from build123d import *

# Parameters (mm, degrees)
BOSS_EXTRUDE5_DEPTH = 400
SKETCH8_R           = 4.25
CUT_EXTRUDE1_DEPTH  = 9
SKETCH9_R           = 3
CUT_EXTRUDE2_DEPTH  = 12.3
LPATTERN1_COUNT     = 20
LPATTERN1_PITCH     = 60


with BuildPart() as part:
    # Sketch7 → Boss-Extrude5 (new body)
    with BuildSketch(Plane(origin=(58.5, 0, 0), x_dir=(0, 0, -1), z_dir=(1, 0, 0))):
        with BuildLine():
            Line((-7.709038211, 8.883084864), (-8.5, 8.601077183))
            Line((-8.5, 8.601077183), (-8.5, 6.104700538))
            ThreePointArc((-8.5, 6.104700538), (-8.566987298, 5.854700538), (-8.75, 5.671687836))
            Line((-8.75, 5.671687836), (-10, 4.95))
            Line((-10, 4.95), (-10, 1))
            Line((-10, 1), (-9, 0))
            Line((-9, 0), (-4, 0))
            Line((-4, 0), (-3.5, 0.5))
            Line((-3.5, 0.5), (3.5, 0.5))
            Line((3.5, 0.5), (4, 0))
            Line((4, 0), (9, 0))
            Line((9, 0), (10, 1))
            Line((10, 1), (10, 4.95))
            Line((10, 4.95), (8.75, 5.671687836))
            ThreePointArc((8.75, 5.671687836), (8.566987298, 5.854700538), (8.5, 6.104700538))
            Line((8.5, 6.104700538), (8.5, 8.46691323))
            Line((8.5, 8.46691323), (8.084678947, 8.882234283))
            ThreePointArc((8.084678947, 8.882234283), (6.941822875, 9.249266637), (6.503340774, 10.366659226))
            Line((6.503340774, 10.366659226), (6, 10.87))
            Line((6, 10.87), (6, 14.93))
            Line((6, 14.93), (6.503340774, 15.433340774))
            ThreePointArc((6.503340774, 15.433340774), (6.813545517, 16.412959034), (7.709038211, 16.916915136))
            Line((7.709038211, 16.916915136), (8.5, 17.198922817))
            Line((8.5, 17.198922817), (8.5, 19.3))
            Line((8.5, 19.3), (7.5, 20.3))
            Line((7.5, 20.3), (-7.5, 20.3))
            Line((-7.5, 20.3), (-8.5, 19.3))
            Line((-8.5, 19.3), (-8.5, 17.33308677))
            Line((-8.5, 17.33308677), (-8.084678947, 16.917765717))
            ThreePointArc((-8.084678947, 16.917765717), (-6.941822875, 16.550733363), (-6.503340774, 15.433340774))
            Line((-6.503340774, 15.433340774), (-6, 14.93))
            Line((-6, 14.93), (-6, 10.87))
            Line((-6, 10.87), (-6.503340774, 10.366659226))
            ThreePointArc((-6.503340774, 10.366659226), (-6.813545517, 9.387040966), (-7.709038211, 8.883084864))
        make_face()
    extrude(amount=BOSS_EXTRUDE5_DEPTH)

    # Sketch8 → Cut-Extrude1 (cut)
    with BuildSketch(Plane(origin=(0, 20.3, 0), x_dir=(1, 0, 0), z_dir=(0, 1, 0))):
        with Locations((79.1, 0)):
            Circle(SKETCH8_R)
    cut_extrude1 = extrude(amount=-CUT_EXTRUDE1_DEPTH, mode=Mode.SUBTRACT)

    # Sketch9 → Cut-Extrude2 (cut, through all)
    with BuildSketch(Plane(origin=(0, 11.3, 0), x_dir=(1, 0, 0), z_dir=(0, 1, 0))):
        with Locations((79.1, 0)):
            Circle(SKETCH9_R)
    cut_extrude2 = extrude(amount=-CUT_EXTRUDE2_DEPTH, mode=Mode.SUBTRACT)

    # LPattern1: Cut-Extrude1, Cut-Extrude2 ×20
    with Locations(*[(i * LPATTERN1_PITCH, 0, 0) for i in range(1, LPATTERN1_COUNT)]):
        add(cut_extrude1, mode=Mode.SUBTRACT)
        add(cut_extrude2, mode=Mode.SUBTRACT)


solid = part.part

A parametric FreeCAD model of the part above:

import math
import FreeCAD as App
import Part
import Sketcher

V = App.Vector
Q = App.Units.Quantity

doc = App.newDocument("Part")
params = doc.addObject("Spreadsheet::Sheet", "Params")
for row, (alias, value) in enumerate([
    ("sketch1_radius", "0.5 mm"),
    ("sketch1_radius2", "1.4 mm"),
    ("sketch1_height", "5 mm"),
    ("sketch1_height2", "7 mm"),
    ("sketch1_height3", "15 mm"),
    ("pad1_length", "400 mm"),
    ("sketch2_diameter", "8.5 mm"),
    ("pocket1_length", "9 mm"),
    ("sketch3_diameter", "6 mm"),
    ("linearpattern_pitch", "60 mm"),
], start=1):
    params.set(f"A{row}", alias)
    params.set(f"B{row}", "=" + value)
    params.setAlias(f"B{row}", alias)

body = doc.addObject("PartDesign::Body", "Body")

# Sketch on YZ plane
sketch1 = doc.addObject("Sketcher::SketchObject", "Sketch")
body.addObject(sketch1)
sketch1.AttachmentSupport = (doc.YZ_Plane, [""])
sketch1.MapMode = "FlatFace"
sketch1.AttachmentOffset = App.Placement(V(0, 0, 58.5), App.Rotation())
sketch1.addGeometry(Part.LineSegment(V(8.9, 7.7, 0), V(8.6, 8.5, 0)), False)
sketch1.addGeometry(Part.LineSegment(V(8.6, 8.5, 0), V(6.1, 8.5, 0)), False)
sketch1.addGeometry(Part.ArcOfCircle(Part.Circle(V(6.1, 9, 0), V(0, 0, 1), 0.5), math.radians(-150), math.radians(-90)), False)
sketch1.addGeometry(Part.LineSegment(V(5.7, 8.8, 0), V(5, 10, 0)), False)
sketch1.addGeometry(Part.LineSegment(V(5, 10, 0), V(1, 10, 0)), False)
sketch1.addGeometry(Part.LineSegment(V(1, 10, 0), V(0, 9, 0)), False)
sketch1.addGeometry(Part.LineSegment(V(0, 9, 0), V(0, 4, 0)), False)
sketch1.addGeometry(Part.LineSegment(V(0, 4, 0), V(0.5, 3.5, 0)), False)
sketch1.addGeometry(Part.LineSegment(V(0.5, 3.5, 0), V(0.5, -3.5, 0)), False)
sketch1.addGeometry(Part.LineSegment(V(0.5, -3.5, 0), V(0, -4, 0)), False)
sketch1.addGeometry(Part.LineSegment(V(0, -4, 0), V(0, -9, 0)), False)
sketch1.addGeometry(Part.LineSegment(V(0, -9, 0), V(1, -10, 0)), False)
sketch1.addGeometry(Part.LineSegment(V(1, -10, 0), V(5, -10, 0)), False)
sketch1.addGeometry(Part.LineSegment(V(5, -10, 0), V(5.7, -8.8, 0)), False)
sketch1.addGeometry(Part.ArcOfCircle(Part.Circle(V(6.1, -9, 0), V(0, 0, 1), 0.5), math.radians(90), math.radians(150)), False)
sketch1.addGeometry(Part.LineSegment(V(6.1, -8.5, 0), V(8.5, -8.5, 0)), False)
sketch1.addGeometry(Part.LineSegment(V(8.5, -8.5, 0), V(8.9, -8.1, 0)), False)
sketch1.addGeometry(Part.ArcOfCircle(Part.Circle(V(10.3, -7.9, 0), V(0, 0, 1), 1.4), math.radians(86), math.radians(188)), False)
sketch1.addGeometry(Part.LineSegment(V(10.4, -6.5, 0), V(10.9, -6, 0)), False)
sketch1.addGeometry(Part.LineSegment(V(10.9, -6, 0), V(14.9, -6, 0)), False)
sketch1.addGeometry(Part.LineSegment(V(14.9, -6, 0), V(15.4, -6.5, 0)), False)
sketch1.addGeometry(Part.ArcOfCircle(Part.Circle(V(15.5, -7.9, 0), V(0, 0, 1), 1.4), math.radians(8), math.radians(94)), False)
sketch1.addGeometry(Part.LineSegment(V(16.9, -7.7, 0), V(17.2, -8.5, 0)), False)
sketch1.addGeometry(Part.LineSegment(V(17.2, -8.5, 0), V(19.3, -8.5, 0)), False)
sketch1.addGeometry(Part.LineSegment(V(19.3, -8.5, 0), V(20.3, -7.5, 0)), False)
sketch1.addGeometry(Part.LineSegment(V(20.3, -7.5, 0), V(20.3, 7.5, 0)), False)
sketch1.addGeometry(Part.LineSegment(V(20.3, 7.5, 0), V(19.3, 8.5, 0)), False)
sketch1.addGeometry(Part.LineSegment(V(19.3, 8.5, 0), V(17.3, 8.5, 0)), False)
sketch1.addGeometry(Part.LineSegment(V(17.3, 8.5, 0), V(16.9, 8.1, 0)), False)
sketch1.addGeometry(Part.ArcOfCircle(Part.Circle(V(15.5, 7.9, 0), V(0, 0, 1), 1.4), math.radians(-94), math.radians(8)), False)
sketch1.addGeometry(Part.LineSegment(V(15.4, 6.5, 0), V(14.9, 6, 0)), False)
sketch1.addGeometry(Part.LineSegment(V(14.9, 6, 0), V(10.9, 6, 0)), False)
sketch1.addGeometry(Part.LineSegment(V(10.9, 6, 0), V(10.4, 6.5, 0)), False)
sketch1.addGeometry(Part.ArcOfCircle(Part.Circle(V(10.3, 7.9, 0), V(0, 0, 1), 1.4), math.radians(-172), math.radians(-86)), False)
sketch1.addConstraint(Sketcher.Constraint("Coincident", 0, 2, 1, 1))
sketch1.addConstraint(Sketcher.Constraint("Tangent", 1, 2, 2, 2))
sketch1.addConstraint(Sketcher.Constraint("Tangent", 2, 1, 3, 1))
sketch1.addConstraint(Sketcher.Constraint("Coincident", 3, 2, 4, 1))
sketch1.addConstraint(Sketcher.Constraint("Coincident", 4, 2, 5, 1))
sketch1.addConstraint(Sketcher.Constraint("Coincident", 5, 2, 6, 1))
sketch1.addConstraint(Sketcher.Constraint("Coincident", 6, 2, 7, 1))
sketch1.addConstraint(Sketcher.Constraint("Coincident", 7, 2, 8, 1))
sketch1.addConstraint(Sketcher.Constraint("Coincident", 8, 2, 9, 1))
sketch1.addConstraint(Sketcher.Constraint("Coincident", 9, 2, 10, 1))
sketch1.addConstraint(Sketcher.Constraint("Coincident", 10, 2, 11, 1))
sketch1.addConstraint(Sketcher.Constraint("Coincident", 11, 2, 12, 1))
sketch1.addConstraint(Sketcher.Constraint("Coincident", 12, 2, 13, 1))
sketch1.addConstraint(Sketcher.Constraint("Tangent", 13, 2, 14, 2))
sketch1.addConstraint(Sketcher.Constraint("Tangent", 14, 1, 15, 1))
sketch1.addConstraint(Sketcher.Constraint("Coincident", 15, 2, 16, 1))
sketch1.addConstraint(Sketcher.Constraint("Coincident", 16, 2, 17, 2))
sketch1.addConstraint(Sketcher.Constraint("Coincident", 17, 1, 18, 1))
sketch1.addConstraint(Sketcher.Constraint("Coincident", 18, 2, 19, 1))
sketch1.addConstraint(Sketcher.Constraint("Coincident", 19, 2, 20, 1))
sketch1.addConstraint(Sketcher.Constraint("Coincident", 20, 2, 21, 2))
sketch1.addConstraint(Sketcher.Constraint("Coincident", 21, 1, 22, 1))
sketch1.addConstraint(Sketcher.Constraint("Coincident", 22, 2, 23, 1))
sketch1.addConstraint(Sketcher.Constraint("Coincident", 23, 2, 24, 1))
sketch1.addConstraint(Sketcher.Constraint("Coincident", 24, 2, 25, 1))
sketch1.addConstraint(Sketcher.Constraint("Coincident", 25, 2, 26, 1))
sketch1.addConstraint(Sketcher.Constraint("Coincident", 26, 2, 27, 1))
sketch1.addConstraint(Sketcher.Constraint("Coincident", 27, 2, 28, 1))
sketch1.addConstraint(Sketcher.Constraint("Coincident", 28, 2, 29, 2))
sketch1.addConstraint(Sketcher.Constraint("Coincident", 29, 1, 30, 1))
sketch1.addConstraint(Sketcher.Constraint("Coincident", 30, 2, 31, 1))
sketch1.addConstraint(Sketcher.Constraint("Coincident", 31, 2, 32, 1))
sketch1.addConstraint(Sketcher.Constraint("Coincident", 32, 2, 33, 2))
sketch1.addConstraint(Sketcher.Constraint("Coincident", 33, 1, 0, 1))
sketch1.addConstraint(Sketcher.Constraint("Horizontal", 1))
sketch1.addConstraint(Sketcher.Constraint("Horizontal", 4))
sketch1.addConstraint(Sketcher.Constraint("Vertical", 6))
sketch1.addConstraint(Sketcher.Constraint("Vertical", 8))
sketch1.addConstraint(Sketcher.Constraint("Vertical", 10))
sketch1.addConstraint(Sketcher.Constraint("Horizontal", 12))
sketch1.addConstraint(Sketcher.Constraint("Horizontal", 15))
sketch1.addConstraint(Sketcher.Constraint("Horizontal", 19))
sketch1.addConstraint(Sketcher.Constraint("Horizontal", 23))
sketch1.addConstraint(Sketcher.Constraint("Vertical", 25))
sketch1.addConstraint(Sketcher.Constraint("Horizontal", 27))
sketch1.addConstraint(Sketcher.Constraint("Horizontal", 31))
sketch1.addConstraint(Sketcher.Constraint("Equal", 2, 14))
sketch1.addConstraint(Sketcher.Constraint("Equal", 17, 21))
sketch1.addConstraint(Sketcher.Constraint("Equal", 21, 29))
sketch1.addConstraint(Sketcher.Constraint("Equal", 29, 33))
sketch1.addConstraint(Sketcher.Constraint("Symmetric", 6, 2, 9, 2, -1, 1))
sketch1.addConstraint(Sketcher.Constraint("Symmetric", 2, 3, 14, 3, -1))
sketch1.addConstraint(Sketcher.Constraint("Symmetric", 21, 3, 29, 3, -1))
sketch1.addConstraint(Sketcher.Constraint("Symmetric", 17, 3, 33, 3, -1))
sketch1.addConstraint(Sketcher.Constraint("Symmetric", 5, 2, 10, 2, -1))
sketch1.addConstraint(Sketcher.Constraint("Symmetric", 4, 2, 11, 2, -1))
sketch1.addConstraint(Sketcher.Constraint("Symmetric", 23, 2, 26, 2, -1))
sketch1.addConstraint(Sketcher.Constraint("Symmetric", 19, 2, 30, 2, -1))
sketch1.addConstraint(Sketcher.Constraint("Perpendicular", 5, 7))
sketch1.addConstraint(Sketcher.Constraint("Perpendicular", 7, 9))
sketch1.addConstraint(Sketcher.Constraint("Perpendicular", 9, 11))
sketch1.addConstraint(Sketcher.Constraint("Perpendicular", 11, 16))
sketch1.addConstraint(Sketcher.Constraint("Parallel", 16, 18))
sketch1.addConstraint(Sketcher.Constraint("Perpendicular", 18, 20))
sketch1.addConstraint(Sketcher.Constraint("Parallel", 0, 22))
sketch1.addConstraint(Sketcher.Constraint("Perpendicular", 20, 24))
sketch1.addConstraint(Sketcher.Constraint("Perpendicular", 24, 26))
sketch1.addConstraint(Sketcher.Constraint("Perpendicular", 26, 28))
sketch1.addConstraint(Sketcher.Constraint("Parallel", 28, 30))
sketch1.addConstraint(Sketcher.Constraint("Perpendicular", 30, 32))
sketch1.addConstraint(Sketcher.Constraint("Horizontal", 17, 3, 21, 3))
sketch1.addConstraint(Sketcher.Constraint("Horizontal", 2, 3, 5, 2))
sketch1.addConstraint(Sketcher.Constraint("Horizontal", 17, 1, 20, 2))
sketch1.addConstraint(Sketcher.Constraint("Horizontal", 15, 2, 22, 2))
sketch1.addConstraint(Sketcher.Constraint("Horizontal", 29, 1, 32, 2))
sketch1.addConstraint(Sketcher.Constraint("Vertical", 3, 2, 12, 2))
sketch1.addConstraint(Sketcher.Constraint("Equal", 0, 22))
sketch1.addConstraint(Sketcher.Constraint("Equal", 11, 24))
sketch1.addConstraint(Sketcher.Constraint("Equal", 16, 28))
sketch1.addConstraint(Sketcher.Constraint("Radius", 2, 0.5))
sketch1.addConstraint(Sketcher.Constraint("Radius", 17, 1.4))
sketch1.addConstraint(Sketcher.Constraint("DistanceY", 6, 2, 6, 1, 5.0))
sketch1.addConstraint(Sketcher.Constraint("DistanceY", 8, 2, 8, 1, 7.0))
sketch1.addConstraint(Sketcher.Constraint("DistanceY", 25, 1, 25, 2, 15.0))
sketch1.addConstraint(Sketcher.Constraint("Angle", 3, Q("120 deg")))
sketch1.addConstraint(Sketcher.Constraint("DistanceY", -1, 1, 2, 3, 9.0))
sketch1.addConstraint(Sketcher.Constraint("DistanceY", 18, 2, -1, 1, 6.0))
sketch1.addConstraint(Sketcher.Constraint("DistanceX", 4, 2, 4, 1, 3.95))
sketch1.addConstraint(Sketcher.Constraint("DistanceX", 19, 1, 19, 2, 4.06))
sketch1.addConstraint(Sketcher.Constraint("DistanceY", 17, 3, -1, 1, 7.9))
sketch1.addConstraint(Sketcher.Constraint("DistanceX", -1, 1, 23, 2, 19.3))
sketch1.addConstraint(Sketcher.Constraint("DistanceX", 17, 3, 18, 2, 0.6))
sketch1.addConstraint(Sketcher.Constraint("DistanceX", -1, 1, 17, 3, 10.27))
sketch1.addConstraint(Sketcher.Constraint("Distance", 0, 0.839731))
sketch1.addConstraint(Sketcher.Constraint("DistanceX", 1, 2, 1, 1, 2.496377))
sketch1.addConstraint(Sketcher.Constraint("DistanceX", 15, 1, 15, 2, 2.362213))
sketch1.setExpression("Constraints[79]", "Params.sketch1_radius")
sketch1.setExpression("Constraints[80]", "Params.sketch1_radius2")
sketch1.setExpression("Constraints[81]", "Params.sketch1_height")
sketch1.setExpression("Constraints[82]", "Params.sketch1_height2")
sketch1.setExpression("Constraints[83]", "Params.sketch1_height3")
pad1 = doc.addObject("PartDesign::Pad", "Pad")
body.addObject(pad1)
pad1.Profile = sketch1
pad1.setExpression("Length", "Params.pad1_length")

# Sketch on XZ plane
sketch2 = doc.addObject("Sketcher::SketchObject", "Sketch001")
body.addObject(sketch2)
sketch2.AttachmentSupport = (doc.XZ_Plane, [""])
sketch2.MapMode = "FlatFace"
sketch2.AttachmentOffset = App.Placement(V(0, 0, -20.3), App.Rotation())
sketch2.addGeometry(Part.Circle(V(79.1, 0, 0), V(0, 0, 1), 4.2), False)
sketch2.addConstraint(Sketcher.Constraint("PointOnObject", 0, 3, -1))
sketch2.addConstraint(Sketcher.Constraint("Diameter", 0, 8.5))
sketch2.addConstraint(Sketcher.Constraint("DistanceX", -1, 1, 0, 3, 79.1))
sketch2.setExpression("Constraints[1]", "Params.sketch2_diameter")
pocket1 = doc.addObject("PartDesign::Pocket", "Pocket")
body.addObject(pocket1)
pocket1.Profile = sketch2
pocket1.setExpression("Length", "Params.pocket1_length")
pocket1.Reversed = True

# Sketch on XZ plane
sketch3 = doc.addObject("Sketcher::SketchObject", "Sketch002")
body.addObject(sketch3)
sketch3.AttachmentSupport = (doc.XZ_Plane, [""])
sketch3.MapMode = "FlatFace"
sketch3.AttachmentOffset = App.Placement(V(0, 0, -11.3), App.Rotation())
sketch3.addGeometry(Part.Circle(V(79.1, 0, 0), V(0, 0, 1), 3), False)
sketch3.addConstraint(Sketcher.Constraint("PointOnObject", 0, 3, -1))
sketch3.addConstraint(Sketcher.Constraint("Diameter", 0, 6.0))
sketch3.addConstraint(Sketcher.Constraint("DistanceX", -1, 1, 0, 3, 79.1))
sketch3.setExpression("Constraints[1]", "Params.sketch3_diameter")
pocket2 = doc.addObject("PartDesign::Pocket", "Pocket001")
body.addObject(pocket2)
pocket2.Profile = sketch3
pocket2.Type = "ThroughAll"
pocket2.Reversed = True
doc.recompute()

linearpattern = doc.addObject("PartDesign::LinearPattern", "LinearPattern")
body.addObject(linearpattern)
linearpattern.Originals = [pocket1, pocket2]
linearpattern.Direction = (doc.X_Axis, [""])
linearpattern.Mode = "offset"
linearpattern.setExpression("Offset", "Params.linearpattern_pitch")
linearpattern.Occurrences = 20
body.Tip = linearpattern

doc.recompute()
